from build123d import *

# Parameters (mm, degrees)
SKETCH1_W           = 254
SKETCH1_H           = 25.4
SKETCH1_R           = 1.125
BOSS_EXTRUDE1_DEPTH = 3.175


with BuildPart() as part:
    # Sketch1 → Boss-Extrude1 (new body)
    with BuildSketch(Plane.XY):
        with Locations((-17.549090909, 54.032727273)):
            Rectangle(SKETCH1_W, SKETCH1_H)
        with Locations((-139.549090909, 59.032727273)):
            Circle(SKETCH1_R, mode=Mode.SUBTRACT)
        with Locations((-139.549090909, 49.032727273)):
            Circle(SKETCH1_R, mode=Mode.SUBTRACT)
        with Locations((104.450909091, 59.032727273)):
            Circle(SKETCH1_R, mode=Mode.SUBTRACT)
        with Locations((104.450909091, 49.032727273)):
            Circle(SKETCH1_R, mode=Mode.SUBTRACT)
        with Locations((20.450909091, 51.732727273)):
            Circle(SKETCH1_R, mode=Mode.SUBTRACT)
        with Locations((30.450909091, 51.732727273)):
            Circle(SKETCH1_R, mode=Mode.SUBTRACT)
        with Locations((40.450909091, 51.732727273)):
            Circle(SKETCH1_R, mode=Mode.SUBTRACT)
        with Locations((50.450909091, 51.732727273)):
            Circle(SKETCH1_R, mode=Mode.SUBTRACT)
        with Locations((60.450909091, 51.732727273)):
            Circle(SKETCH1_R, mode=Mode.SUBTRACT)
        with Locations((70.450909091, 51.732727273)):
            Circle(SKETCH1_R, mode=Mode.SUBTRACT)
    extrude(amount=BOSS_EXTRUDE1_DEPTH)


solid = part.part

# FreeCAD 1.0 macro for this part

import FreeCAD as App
import Part
import Sketcher
from FreeCAD import Vector
Q = App.Units.Quantity

doc = App.newDocument("Part")
body = doc.addObject("PartDesign::Body", "Body")

sketch1 = body.newObject("Sketcher::SketchObject", "Sketch")
sketch1.AttachmentSupport = (doc.getObject("XY_Plane"), [""])
sketch1.MapMode = "FlatFace"
sketch1.addGeometry([
    Part.LineSegment(Vector(-144.5, 66.7, 0), Vector(-144.5, 41.3, 0)),
    Part.LineSegment(Vector(-144.5, 41.3, 0), Vector(109.5, 41.3, 0)),
    Part.LineSegment(Vector(109.5, 41.3, 0), Vector(109.5, 66.7, 0)),
    Part.LineSegment(Vector(109.5, 66.7, 0), Vector(-144.5, 66.7, 0)),
    Part.Circle(Vector(-139.5, 49, 0), Vector(0, 0, 1), 1.1),
    Part.Circle(Vector(104.5, 49, 0), Vector(0, 0, 1), 1.1),
    Part.Circle(Vector(20.5, 51.7, 0), Vector(0, 0, 1), 1.1),
    Part.Circle(Vector(30.5, 51.7, 0), Vector(0, 0, 1), 1.1),
    Part.Circle(Vector(40.5, 51.7, 0), Vector(0, 0, 1), 1.1),
    Part.Circle(Vector(50.5, 51.7, 0), Vector(0, 0, 1), 1.1),
    Part.Circle(Vector(60.5, 51.7, 0), Vector(0, 0, 1), 1.1),
    Part.Circle(Vector(70.5, 51.7, 0), Vector(0, 0, 1), 1.1),
    Part.Circle(Vector(-139.5, 59, 0), Vector(0, 0, 1), 1.1),
    Part.Circle(Vector(104.5, 59, 0), Vector(0, 0, 1), 1.1),
], False)
sketch1.addConstraint([
    Sketcher.Constraint("Coincident", 0, 2, 1, 1),
    Sketcher.Constraint("Coincident", 1, 2, 2, 1),
    Sketcher.Constraint("Coincident", 2, 2, 3, 1),
    Sketcher.Constraint("Coincident", 3, 2, 0, 1),
    Sketcher.Constraint("Vertical", 0),
    Sketcher.Constraint("Horizontal", 1),
    Sketcher.Constraint("Vertical", 2),
    Sketcher.Constraint("Horizontal", 3),
    Sketcher.Constraint("Equal", 4, 5),
    Sketcher.Constraint("Equal", 5, 6),
    Sketcher.Constraint("Equal", 6, 7),
    Sketcher.Constraint("Equal", 7, 8),
    Sketcher.Constraint("Equal", 8, 9),
    Sketcher.Constraint("Equal", 9, 10),
    Sketcher.Constraint("Equal", 10, 11),
    Sketcher.Constraint("Equal", 11, 12),
    Sketcher.Constraint("Equal", 12, 13),
    Sketcher.Constraint("Horizontal", 4, 3, 5, 3),
    Sketcher.Constraint("Horizontal", 6, 3, 7, 3),
    Sketcher.Constraint("Horizontal", 7, 3, 8, 3),
    Sketcher.Constraint("Horizontal", 8, 3, 9, 3),
    Sketcher.Constraint("Horizontal", 9, 3, 10, 3),
    Sketcher.Constraint("Horizontal", 10, 3, 11, 3),
    Sketcher.Constraint("Horizontal", 12, 3, 13, 3),
    Sketcher.Constraint("Vertical", 4, 3, 12, 3),
    Sketcher.Constraint("Vertical", 5, 3, 13, 3),
    Sketcher.Constraint("DistanceX", 1, 1, 1, 2, Q("10 in")),
    Sketcher.Constraint("DistanceY", 0, 2, 0, 1, Q("1 in")),
    Sketcher.Constraint("Diameter", 4, 2.25),
    Sketcher.Constraint("DistanceX", 4, 3, 5, 3, 244.0),
    Sketcher.Constraint("DistanceX", 6, 3, 5, 3, 84.0),
    Sketcher.Constraint("DistanceY", 5, 3, 6, 3, 2.7),
    Sketcher.Constraint("DistanceX", 6, 3, 7, 3, 10.0),
    Sketcher.Constraint("DistanceX", 7, 3, 8, 3, 10.0),
    Sketcher.Constraint("DistanceX", 8, 3, 9, 3, 10.0),
    Sketcher.Constraint("DistanceX", 9, 3, 10, 3, 10.0),
    Sketcher.Constraint("DistanceX", 10, 3, 11, 3, 10.0),
    Sketcher.Constraint("DistanceY", 4, 3, 12, 3, 10.0),
    Sketcher.Constraint("DistanceX", 0, 2, 4, 3, 5.0),
    Sketcher.Constraint("DistanceY", 0, 2, 4, 3, 7.7),
    Sketcher.Constraint("DistanceX", 4, 3, -1, 1, 139.549091),
    Sketcher.Constraint("DistanceY", -1, 1, 4, 3, 49.032727),
])
pad1 = body.newObject("PartDesign::Pad", "Pad")
pad1.Profile = sketch1
pad1.Length = Q("0.125 in")

doc.recompute()
